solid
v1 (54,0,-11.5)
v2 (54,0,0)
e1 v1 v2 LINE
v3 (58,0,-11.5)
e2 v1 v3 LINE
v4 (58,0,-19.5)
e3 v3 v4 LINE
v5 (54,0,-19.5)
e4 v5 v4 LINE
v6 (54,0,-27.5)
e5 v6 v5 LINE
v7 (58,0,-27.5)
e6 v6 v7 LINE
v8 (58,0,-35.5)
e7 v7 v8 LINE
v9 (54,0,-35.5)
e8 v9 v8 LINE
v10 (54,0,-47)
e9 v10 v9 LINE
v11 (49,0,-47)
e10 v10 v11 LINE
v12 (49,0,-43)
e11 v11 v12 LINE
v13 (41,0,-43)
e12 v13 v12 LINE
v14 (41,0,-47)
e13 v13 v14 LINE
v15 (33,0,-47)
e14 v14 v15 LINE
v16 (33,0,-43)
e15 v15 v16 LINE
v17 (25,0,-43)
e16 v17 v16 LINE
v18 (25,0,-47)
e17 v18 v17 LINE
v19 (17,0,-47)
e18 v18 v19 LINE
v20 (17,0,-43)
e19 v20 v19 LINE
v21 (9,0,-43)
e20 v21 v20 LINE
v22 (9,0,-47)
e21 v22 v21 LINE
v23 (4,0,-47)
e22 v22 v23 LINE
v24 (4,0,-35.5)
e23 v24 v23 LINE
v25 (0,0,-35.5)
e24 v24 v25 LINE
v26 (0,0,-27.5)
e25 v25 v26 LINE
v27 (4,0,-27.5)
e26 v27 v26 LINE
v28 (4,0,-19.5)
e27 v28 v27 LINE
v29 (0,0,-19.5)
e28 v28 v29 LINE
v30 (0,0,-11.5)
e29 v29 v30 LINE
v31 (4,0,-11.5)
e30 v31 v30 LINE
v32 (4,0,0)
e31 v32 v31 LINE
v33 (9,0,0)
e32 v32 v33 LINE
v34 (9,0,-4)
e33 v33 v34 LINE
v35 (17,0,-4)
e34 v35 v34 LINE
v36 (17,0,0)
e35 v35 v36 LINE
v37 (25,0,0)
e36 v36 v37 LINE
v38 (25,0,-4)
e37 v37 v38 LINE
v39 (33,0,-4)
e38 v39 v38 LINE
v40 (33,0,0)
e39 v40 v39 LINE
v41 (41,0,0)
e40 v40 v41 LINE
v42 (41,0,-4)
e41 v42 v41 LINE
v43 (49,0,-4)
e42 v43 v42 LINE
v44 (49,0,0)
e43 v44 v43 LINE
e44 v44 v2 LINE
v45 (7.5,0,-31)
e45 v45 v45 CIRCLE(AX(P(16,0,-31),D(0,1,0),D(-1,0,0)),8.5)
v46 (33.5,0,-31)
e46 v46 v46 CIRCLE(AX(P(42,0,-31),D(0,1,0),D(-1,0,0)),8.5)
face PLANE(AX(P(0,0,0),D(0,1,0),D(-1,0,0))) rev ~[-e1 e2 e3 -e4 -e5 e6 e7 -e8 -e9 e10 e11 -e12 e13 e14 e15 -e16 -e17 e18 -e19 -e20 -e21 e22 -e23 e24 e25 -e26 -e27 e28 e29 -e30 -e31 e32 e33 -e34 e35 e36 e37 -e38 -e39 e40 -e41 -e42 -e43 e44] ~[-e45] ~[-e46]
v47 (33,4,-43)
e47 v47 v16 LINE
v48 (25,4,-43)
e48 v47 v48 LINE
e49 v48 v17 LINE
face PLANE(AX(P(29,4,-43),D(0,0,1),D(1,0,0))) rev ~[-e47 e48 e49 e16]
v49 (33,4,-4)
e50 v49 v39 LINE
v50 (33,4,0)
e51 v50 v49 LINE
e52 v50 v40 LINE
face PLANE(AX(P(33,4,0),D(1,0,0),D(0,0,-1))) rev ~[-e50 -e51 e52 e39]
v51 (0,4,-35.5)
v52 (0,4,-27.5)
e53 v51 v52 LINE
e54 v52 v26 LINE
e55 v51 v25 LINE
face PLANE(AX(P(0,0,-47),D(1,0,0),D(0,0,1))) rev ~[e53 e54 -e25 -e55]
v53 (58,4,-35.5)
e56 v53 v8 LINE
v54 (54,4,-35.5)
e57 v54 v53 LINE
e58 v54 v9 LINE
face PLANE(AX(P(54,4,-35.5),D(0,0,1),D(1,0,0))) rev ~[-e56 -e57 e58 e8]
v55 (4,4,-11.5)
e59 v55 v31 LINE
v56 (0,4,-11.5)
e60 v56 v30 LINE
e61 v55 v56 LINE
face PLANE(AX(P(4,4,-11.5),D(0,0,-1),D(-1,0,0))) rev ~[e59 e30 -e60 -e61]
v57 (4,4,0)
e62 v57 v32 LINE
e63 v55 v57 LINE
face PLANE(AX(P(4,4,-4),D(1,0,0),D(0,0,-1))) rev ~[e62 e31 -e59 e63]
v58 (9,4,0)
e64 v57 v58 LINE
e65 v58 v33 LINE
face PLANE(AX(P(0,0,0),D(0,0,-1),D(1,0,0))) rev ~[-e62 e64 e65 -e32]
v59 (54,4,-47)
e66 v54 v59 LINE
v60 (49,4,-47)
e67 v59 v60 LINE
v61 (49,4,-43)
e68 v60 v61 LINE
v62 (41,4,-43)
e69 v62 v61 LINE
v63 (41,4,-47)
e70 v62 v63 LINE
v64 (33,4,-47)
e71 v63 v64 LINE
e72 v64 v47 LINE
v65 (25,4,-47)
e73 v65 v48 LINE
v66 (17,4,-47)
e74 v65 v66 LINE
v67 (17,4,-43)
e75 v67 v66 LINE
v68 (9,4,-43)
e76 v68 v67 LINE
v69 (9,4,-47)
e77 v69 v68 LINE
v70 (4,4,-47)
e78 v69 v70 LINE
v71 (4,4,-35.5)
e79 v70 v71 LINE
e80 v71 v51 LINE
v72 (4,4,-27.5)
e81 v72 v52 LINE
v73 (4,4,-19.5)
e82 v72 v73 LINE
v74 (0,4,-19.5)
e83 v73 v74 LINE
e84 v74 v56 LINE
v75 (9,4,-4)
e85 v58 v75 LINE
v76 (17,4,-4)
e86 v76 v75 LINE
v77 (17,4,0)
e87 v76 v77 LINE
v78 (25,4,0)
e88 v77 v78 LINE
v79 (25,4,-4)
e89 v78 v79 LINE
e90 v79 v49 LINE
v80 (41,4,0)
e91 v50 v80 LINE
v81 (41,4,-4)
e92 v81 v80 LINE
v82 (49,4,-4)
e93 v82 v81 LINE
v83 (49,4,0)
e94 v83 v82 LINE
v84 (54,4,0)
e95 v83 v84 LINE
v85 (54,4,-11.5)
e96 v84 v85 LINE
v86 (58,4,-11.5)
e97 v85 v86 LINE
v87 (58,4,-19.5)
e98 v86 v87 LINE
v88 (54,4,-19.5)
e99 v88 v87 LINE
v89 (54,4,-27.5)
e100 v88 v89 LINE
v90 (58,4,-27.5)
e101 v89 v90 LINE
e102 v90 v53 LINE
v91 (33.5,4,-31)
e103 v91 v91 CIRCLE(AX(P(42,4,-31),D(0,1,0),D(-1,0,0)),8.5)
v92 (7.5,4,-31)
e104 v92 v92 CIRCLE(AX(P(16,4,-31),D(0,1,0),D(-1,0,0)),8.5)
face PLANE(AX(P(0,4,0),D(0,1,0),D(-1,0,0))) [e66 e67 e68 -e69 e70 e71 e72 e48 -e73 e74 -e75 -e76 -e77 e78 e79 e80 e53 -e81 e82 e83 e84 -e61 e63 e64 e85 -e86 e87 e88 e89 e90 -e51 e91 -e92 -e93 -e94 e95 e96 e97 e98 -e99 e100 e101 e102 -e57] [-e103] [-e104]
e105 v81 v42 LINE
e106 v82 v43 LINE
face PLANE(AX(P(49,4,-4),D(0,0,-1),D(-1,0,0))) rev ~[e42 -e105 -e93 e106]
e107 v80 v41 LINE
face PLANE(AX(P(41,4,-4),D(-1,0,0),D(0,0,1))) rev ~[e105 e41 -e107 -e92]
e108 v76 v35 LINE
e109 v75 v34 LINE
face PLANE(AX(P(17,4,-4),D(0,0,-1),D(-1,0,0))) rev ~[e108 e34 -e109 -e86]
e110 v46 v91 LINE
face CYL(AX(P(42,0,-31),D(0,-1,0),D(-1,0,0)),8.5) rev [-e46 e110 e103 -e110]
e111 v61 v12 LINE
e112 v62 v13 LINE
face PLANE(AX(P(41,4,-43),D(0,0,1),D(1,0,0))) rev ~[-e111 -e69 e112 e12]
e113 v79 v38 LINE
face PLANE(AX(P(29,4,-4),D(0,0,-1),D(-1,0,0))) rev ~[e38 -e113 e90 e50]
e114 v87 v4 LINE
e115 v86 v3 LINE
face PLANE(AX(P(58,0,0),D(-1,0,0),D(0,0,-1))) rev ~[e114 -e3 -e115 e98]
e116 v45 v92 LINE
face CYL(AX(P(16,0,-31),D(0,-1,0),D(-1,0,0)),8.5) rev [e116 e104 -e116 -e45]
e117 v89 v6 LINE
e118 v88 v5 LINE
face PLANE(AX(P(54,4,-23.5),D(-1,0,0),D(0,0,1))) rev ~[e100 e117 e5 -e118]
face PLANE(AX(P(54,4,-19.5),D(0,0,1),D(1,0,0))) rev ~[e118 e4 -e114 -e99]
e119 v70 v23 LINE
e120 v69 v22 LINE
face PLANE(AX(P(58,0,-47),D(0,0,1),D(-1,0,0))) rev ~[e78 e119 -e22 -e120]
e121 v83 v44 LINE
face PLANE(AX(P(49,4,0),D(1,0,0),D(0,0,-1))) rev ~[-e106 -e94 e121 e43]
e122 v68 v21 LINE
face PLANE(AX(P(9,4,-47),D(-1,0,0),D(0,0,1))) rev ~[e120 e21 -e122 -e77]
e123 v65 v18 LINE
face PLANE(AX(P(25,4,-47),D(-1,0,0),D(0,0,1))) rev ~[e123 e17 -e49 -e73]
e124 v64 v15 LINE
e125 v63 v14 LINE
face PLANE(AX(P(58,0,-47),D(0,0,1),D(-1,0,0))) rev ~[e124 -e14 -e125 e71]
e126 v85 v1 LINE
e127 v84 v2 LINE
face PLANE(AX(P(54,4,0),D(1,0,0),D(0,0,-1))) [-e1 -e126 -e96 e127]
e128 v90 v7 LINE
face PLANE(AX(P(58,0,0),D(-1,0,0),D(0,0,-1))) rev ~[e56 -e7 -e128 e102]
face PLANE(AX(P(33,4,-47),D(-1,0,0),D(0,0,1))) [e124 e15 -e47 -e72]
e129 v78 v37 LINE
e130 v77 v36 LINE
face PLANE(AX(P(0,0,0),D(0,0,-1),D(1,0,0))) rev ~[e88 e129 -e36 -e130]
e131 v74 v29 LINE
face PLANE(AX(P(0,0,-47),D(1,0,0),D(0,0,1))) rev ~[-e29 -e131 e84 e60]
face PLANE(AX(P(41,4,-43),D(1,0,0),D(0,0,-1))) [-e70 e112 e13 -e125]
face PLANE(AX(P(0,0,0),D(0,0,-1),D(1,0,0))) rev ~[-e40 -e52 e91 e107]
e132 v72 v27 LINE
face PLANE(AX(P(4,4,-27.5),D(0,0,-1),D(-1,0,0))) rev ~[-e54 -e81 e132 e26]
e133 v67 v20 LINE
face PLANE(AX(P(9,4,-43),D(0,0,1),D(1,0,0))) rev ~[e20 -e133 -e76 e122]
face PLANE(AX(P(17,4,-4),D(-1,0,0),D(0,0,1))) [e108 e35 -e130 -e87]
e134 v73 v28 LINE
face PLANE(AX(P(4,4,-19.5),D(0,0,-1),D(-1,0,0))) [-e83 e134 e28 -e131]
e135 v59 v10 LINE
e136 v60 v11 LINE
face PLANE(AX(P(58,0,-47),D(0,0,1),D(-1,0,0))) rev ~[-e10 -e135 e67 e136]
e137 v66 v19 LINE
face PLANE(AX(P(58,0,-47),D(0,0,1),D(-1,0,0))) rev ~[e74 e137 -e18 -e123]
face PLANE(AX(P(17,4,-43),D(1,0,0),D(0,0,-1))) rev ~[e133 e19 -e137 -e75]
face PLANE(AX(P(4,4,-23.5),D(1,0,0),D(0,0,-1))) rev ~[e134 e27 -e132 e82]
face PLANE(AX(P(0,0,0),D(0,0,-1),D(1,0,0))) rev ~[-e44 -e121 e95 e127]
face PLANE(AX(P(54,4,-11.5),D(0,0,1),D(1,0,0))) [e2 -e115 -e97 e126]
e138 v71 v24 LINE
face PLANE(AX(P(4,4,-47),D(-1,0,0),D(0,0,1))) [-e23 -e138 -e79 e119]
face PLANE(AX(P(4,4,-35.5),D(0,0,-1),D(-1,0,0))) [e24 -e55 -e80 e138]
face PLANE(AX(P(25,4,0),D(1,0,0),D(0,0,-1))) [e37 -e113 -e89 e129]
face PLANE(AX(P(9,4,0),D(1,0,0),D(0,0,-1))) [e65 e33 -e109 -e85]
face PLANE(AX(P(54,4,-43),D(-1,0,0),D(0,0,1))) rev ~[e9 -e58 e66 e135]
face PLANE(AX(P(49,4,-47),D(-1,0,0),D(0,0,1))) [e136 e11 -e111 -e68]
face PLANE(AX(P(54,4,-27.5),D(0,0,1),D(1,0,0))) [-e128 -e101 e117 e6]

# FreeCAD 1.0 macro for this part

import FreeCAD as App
import Part
import Sketcher
from FreeCAD import Vector


def add_polygon(sketch, points):
    """Adds a closed chain of lines whose ends are joined by coincident constraints."""
    first, n = sketch.GeometryCount, len(points)
    for a, b in zip(points, points[1:] + points[:1]):
        sketch.addGeometry(Part.LineSegment(App.Vector(*a, 0), App.Vector(*b, 0)), False)
    for i in range(n):
        sketch.addConstraint(Sketcher.Constraint("Coincident", first + i, 2, first + (i + 1) % n, 1))

doc = App.newDocument("Part")
body = doc.addObject("PartDesign::Body", "Body")

# Sketch on XZ plane
sketch1 = body.newObject("Sketcher::SketchObject", "Sketch")
sketch1.AttachmentSupport = (doc.getObject("XZ_Plane"), [""])
sketch1.MapMode = "FlatFace"
add_polygon(sketch1, [(0, -47), (0, 0), (58, 0), (58, -47)])  # lines 0-3
sketch1.addGeometry(Part.Circle(Vector(42, -31, 0), Vector(0, 0, 1), 8.5), False)  # 4
sketch1.addGeometry(Part.Circle(Vector(16, -31, 0), Vector(0, 0, 1), 8.5), False)  # 5
sketch1.addConstraint([
    Sketcher.Constraint("Vertical", 0),
    Sketcher.Constraint("Horizontal", 1),
    Sketcher.Constraint("Vertical", 2),
    Sketcher.Constraint("Horizontal", 3),
    Sketcher.Constraint("Coincident", 0, 2, -1, 1),
    Sketcher.Constraint("Equal", 4, 5),
    Sketcher.Constraint("Horizontal", 4, 3, 5, 3),
    Sketcher.Constraint("Diameter", 4, 17.0),
    Sketcher.Constraint("DistanceX", 1, 1, 1, 2, 58.0),
    Sketcher.Constraint("DistanceY", 0, 1, 0, 2, 47.0),
    Sketcher.Constraint("DistanceX", -1, 1, 5, 3, 16.0),
    Sketcher.Constraint("DistanceX", 5, 3, 4, 3, 26.0),
    Sketcher.Constraint("DistanceY", 2, 2, 4, 3, 16.0),
])
pad1 = body.newObject("PartDesign::Pad", "Pad")
pad1.Profile = sketch1
pad1.Length = 4
pad1.Reversed = True

# Sketch on XZ plane
sketch2 = body.newObject("Sketcher::SketchObject", "Sketch001")
sketch2.AttachmentSupport = (doc.getObject("XZ_Plane"), [""])
sketch2.MapMode = "FlatFace"
sketch2.AttachmentOffset = App.Placement(Vector(0, 0, -4), App.Rotation())
add_polygon(sketch2, [(58, -35.5), (58, -47), (54, -47), (54, -35.5)])  # lines 0-3
add_polygon(sketch2, [(49, -43), (49, -47), (41, -47), (41, -43)])  # lines 4-7
add_polygon(sketch2, [(58, -19.5), (58, -27.5), (54, -27.5), (54, -19.5)])  # lines 8-11
add_polygon(sketch2, [(33, -43), (33, -47), (25, -47), (25, -43)])  # lines 12-15
add_polygon(sketch2, [(58, 0), (58, -11.5), (54, -11.5), (54, 0)])  # lines 16-19
add_polygon(sketch2, [(17, -43), (17, -47), (9, -47), (9, -43)])  # lines 20-23
add_polygon(sketch2, [(41, 0), (49, 0), (49, -4), (41, -4)])  # lines 24-27
add_polygon(sketch2, [(4, -35.5), (4, -47), (0, -47), (0, -35.5)])  # lines 28-31
add_polygon(sketch2, [(25, 0), (33, 0), (33, -4), (25, -4)])  # lines 32-35
add_polygon(sketch2, [(4, -27.5), (0, -27.5), (0, -19.5), (4, -19.5)])  # lines 36-39
add_polygon(sketch2, [(9, 0), (17, 0), (17, -4), (9, -4)])  # lines 40-43
add_polygon(sketch2, [(4, -11.5), (0, -11.5), (0, 0), (4, 0)])  # lines 44-47
sketch2.addConstraint([
    Sketcher.Constraint("Vertical", 0),
    Sketcher.Constraint("Horizontal", 1),
    Sketcher.Constraint("Vertical", 2),
    Sketcher.Constraint("Horizontal", 3),
    Sketcher.Constraint("Vertical", 4),
    Sketcher.Constraint("Horizontal", 5),
    Sketcher.Constraint("Vertical", 6),
    Sketcher.Constraint("Horizontal", 7),
    Sketcher.Constraint("Vertical", 8),
    Sketcher.Constraint("Horizontal", 9),
    Sketcher.Constraint("Vertical", 10),
    Sketcher.Constraint("Horizontal", 11),
    Sketcher.Constraint("Vertical", 12),
    Sketcher.Constraint("Horizontal", 13),
    Sketcher.Constraint("Vertical", 14),
    Sketcher.Constraint("Horizontal", 15),
    Sketcher.Constraint("Vertical", 16),
    Sketcher.Constraint("Horizontal", 17),
    Sketcher.Constraint("Vertical", 18),
    Sketcher.Constraint("Horizontal", 19),
    Sketcher.Constraint("Vertical", 20),
    Sketcher.Constraint("Horizontal", 21),
    Sketcher.Constraint("Vertical", 22),
    Sketcher.Constraint("Horizontal", 23),
    Sketcher.Constraint("Horizontal", 24),
    Sketcher.Constraint("Vertical", 25),
    Sketcher.Constraint("Horizontal", 26),
    Sketcher.Constraint("Vertical", 27),
    Sketcher.Constraint("Vertical", 28),
    Sketcher.Constraint("Horizontal", 29),
    Sketcher.Constraint("Vertical", 30),
    Sketcher.Constraint("Horizontal", 31),
    Sketcher.Constraint("Horizontal", 32),
    Sketcher.Constraint("Vertical", 33),
    Sketcher.Constraint("Horizontal", 34),
    Sketcher.Constraint("Vertical", 35),
    Sketcher.Constraint("Horizontal", 36),
    Sketcher.Constraint("Vertical", 37),
    Sketcher.Constraint("Horizontal", 38),
    Sketcher.Constraint("Vertical", 39),
    Sketcher.Constraint("Horizontal", 40),
    Sketcher.Constraint("Vertical", 41),
    Sketcher.Constraint("Horizontal", 42),
    Sketcher.Constraint("Vertical", 43),
    Sketcher.Constraint("Horizontal", 44),
    Sketcher.Constraint("Vertical", 45),
    Sketcher.Constraint("Horizontal", 46),
    Sketcher.Constraint("Vertical", 47),
    Sketcher.Constraint("Coincident", 45, 2, -1, 1),
    Sketcher.Constraint("PointOnObject", 18, 2, -1),
    Sketcher.Constraint("PointOnObject", 24, 2, -1),
    Sketcher.Constraint("PointOnObject", 29, 2, -2),
    Sketcher.Constraint("PointOnObject", 32, 2, -1),
    Sketcher.Constraint("PointOnObject", 36, 2, -2),
    Sketcher.Constraint("PointOnObject", 40, 2, -1),
    Sketcher.Constraint("Horizontal", 1, 2, 4, 2),
    Sketcher.Constraint("Horizontal", 5, 2, 12, 2),
    Sketcher.Constraint("Horizontal", 7, 2, 14, 2),
    Sketcher.Constraint("Horizontal", 13, 2, 20, 2),
    Sketcher.Constraint("Horizontal", 15, 2, 22, 2),
    Sketcher.Constraint("Horizontal", 21, 2, 28, 2),
    Sketcher.Constraint("Horizontal", 3, 2, 30, 2),
    Sketcher.Constraint("Horizontal", 26, 2, 33, 2),
    Sketcher.Constraint("Horizontal", 9, 2, 36, 2),
    Sketcher.Constraint("Horizontal", 11, 2, 37, 2),
    Sketcher.Constraint("Horizontal", 34, 2, 41, 2),
    Sketcher.Constraint("Horizontal", 17, 2, 44, 2),
    Sketcher.Constraint("Vertical", 3, 2, 8, 2),
    Sketcher.Constraint("Vertical", 2, 2, 9, 2),
    Sketcher.Constraint("Vertical", 11, 2, 16, 2),
    Sketcher.Constraint("Vertical", 10, 2, 17, 2),
    Sketcher.Constraint("Vertical", 7, 2, 24, 2),
    Sketcher.Constraint("Vertical", 6, 2, 26, 2),
    Sketcher.Constraint("Vertical", 15, 2, 32, 2),
    Sketcher.Constraint("Vertical", 14, 2, 34, 2),
    Sketcher.Constraint("Vertical", 31, 2, 38, 2),
    Sketcher.Constraint("Vertical", 23, 2, 40, 2),
    Sketcher.Constraint("Vertical", 22, 2, 42, 2),
    Sketcher.Constraint("Vertical", 39, 2, 46, 2),
    Sketcher.Constraint("Equal", 7, 13),
    Sketcher.Constraint("Equal", 15, 21),
    Sketcher.Constraint("Equal", 19, 29),
    Sketcher.Constraint("Equal", 46, 4),
    Sketcher.Constraint("Equal", 42, 8),
    Sketcher.Constraint("Equal", 2, 16),
    Sketcher.Constraint("Equal", 22, 25),
    Sketcher.Constraint("DistanceX", 1, 2, 1, 1, 4.0),
    Sketcher.Constraint("DistanceX", 5, 2, 5, 1, 8.0),
    Sketcher.Constraint("DistanceY", 3, 2, 8, 2, 8.0),
    Sketcher.Constraint("DistanceX", 12, 2, 5, 2, 8.0),
    Sketcher.Constraint("DistanceY", 11, 2, 16, 2, 8.0),
    Sketcher.Constraint("DistanceX", 20, 2, 13, 2, 8.0),
    Sketcher.Constraint("DistanceY", 0, 2, 0, 1, 11.5),
    Sketcher.Constraint("DistanceX", -1, 1, 0, 2, 58.0),
    Sketcher.Constraint("DistanceX", -1, 1, 4, 2, 49.0),
])
pocket1 = body.newObject("PartDesign::Pocket", "Pocket")
pocket1.Profile = sketch2
pocket1.Length = 4
pocket1.Reversed = True

doc.recompute()
